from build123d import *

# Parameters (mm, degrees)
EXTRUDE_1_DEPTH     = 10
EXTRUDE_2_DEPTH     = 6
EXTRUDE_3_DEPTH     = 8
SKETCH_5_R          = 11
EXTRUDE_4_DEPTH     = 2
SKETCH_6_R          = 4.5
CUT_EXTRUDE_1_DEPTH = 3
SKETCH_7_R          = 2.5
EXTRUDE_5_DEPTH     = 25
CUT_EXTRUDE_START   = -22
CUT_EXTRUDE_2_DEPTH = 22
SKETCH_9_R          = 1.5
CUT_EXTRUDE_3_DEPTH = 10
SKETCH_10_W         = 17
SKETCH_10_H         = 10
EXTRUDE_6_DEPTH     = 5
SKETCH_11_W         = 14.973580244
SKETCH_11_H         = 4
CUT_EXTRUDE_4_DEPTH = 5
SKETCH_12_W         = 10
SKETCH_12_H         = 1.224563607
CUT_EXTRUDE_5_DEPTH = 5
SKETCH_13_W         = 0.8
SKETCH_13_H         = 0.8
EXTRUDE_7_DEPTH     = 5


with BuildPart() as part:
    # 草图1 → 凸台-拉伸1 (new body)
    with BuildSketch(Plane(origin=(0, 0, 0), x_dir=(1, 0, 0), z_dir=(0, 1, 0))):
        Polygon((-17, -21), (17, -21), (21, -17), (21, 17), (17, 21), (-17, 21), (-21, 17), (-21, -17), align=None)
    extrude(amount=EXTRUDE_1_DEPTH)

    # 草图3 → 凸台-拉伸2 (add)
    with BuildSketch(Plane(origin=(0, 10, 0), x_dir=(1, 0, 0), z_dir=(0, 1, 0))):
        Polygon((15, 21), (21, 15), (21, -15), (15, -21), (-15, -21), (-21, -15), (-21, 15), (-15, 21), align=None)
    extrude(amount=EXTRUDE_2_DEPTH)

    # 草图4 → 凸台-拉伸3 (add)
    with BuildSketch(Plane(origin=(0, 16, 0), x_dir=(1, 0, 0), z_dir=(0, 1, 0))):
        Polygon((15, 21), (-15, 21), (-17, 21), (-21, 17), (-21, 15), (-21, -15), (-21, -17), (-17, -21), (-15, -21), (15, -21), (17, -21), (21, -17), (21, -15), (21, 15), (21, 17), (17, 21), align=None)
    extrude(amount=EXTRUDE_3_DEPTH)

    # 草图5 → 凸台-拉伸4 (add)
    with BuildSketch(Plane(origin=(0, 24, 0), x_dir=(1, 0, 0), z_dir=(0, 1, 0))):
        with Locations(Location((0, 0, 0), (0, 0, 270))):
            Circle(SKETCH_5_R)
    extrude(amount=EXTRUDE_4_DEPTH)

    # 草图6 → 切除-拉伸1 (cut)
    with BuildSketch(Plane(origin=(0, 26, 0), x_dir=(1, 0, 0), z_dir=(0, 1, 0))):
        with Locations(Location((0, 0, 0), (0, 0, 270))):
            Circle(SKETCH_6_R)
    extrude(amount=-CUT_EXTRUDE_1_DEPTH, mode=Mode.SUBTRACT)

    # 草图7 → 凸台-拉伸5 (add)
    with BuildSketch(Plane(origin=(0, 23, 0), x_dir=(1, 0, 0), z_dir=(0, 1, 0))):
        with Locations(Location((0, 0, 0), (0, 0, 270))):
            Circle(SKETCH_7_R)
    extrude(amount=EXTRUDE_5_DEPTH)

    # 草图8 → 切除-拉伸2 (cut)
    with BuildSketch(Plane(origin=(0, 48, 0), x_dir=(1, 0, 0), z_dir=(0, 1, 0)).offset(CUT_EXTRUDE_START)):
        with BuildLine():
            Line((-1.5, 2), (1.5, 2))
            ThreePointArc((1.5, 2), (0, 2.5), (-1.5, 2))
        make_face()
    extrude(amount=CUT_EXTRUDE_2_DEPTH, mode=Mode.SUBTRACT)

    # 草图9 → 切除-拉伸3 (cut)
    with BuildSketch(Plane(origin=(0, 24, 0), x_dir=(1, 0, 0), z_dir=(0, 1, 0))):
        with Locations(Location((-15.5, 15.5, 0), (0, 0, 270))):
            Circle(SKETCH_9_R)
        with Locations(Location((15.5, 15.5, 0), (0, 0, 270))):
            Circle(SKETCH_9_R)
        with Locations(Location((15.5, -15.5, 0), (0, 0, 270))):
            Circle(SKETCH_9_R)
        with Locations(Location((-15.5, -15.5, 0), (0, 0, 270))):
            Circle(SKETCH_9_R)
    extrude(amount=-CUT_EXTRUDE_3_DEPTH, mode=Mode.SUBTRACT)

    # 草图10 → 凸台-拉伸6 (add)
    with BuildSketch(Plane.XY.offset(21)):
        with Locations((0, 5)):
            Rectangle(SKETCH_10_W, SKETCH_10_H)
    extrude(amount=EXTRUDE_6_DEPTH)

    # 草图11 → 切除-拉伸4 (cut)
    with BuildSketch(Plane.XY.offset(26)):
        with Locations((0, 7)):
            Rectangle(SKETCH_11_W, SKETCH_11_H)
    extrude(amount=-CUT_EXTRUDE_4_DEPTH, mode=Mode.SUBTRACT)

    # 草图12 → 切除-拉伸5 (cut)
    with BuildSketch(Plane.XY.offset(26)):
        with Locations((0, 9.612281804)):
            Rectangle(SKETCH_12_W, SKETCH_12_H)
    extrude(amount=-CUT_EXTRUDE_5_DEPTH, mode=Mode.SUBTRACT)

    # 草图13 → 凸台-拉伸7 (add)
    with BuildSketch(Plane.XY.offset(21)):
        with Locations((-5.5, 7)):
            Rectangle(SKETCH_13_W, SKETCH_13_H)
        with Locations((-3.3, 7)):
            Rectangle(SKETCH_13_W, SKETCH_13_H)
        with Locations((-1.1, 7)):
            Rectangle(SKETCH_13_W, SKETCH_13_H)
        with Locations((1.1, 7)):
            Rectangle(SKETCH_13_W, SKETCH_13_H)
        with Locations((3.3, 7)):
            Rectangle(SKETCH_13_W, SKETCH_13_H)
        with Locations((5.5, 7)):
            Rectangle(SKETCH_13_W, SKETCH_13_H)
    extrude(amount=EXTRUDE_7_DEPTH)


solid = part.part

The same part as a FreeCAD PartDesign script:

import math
import FreeCAD as App
import Part
import Sketcher

V = App.Vector
Q = App.Units.Quantity


def add_polygon(sketch, points):
    """Adds a closed chain of lines whose ends are joined by coincident constraints."""
    first, n = sketch.GeometryCount, len(points)
    for a, b in zip(points, points[1:] + points[:1]):
        sketch.addGeometry(Part.LineSegment(App.Vector(*a, 0), App.Vector(*b, 0)), False)
    for i in range(n):
        sketch.addConstraint(Sketcher.Constraint("Coincident", first + i, 2, first + (i + 1) % n, 1))

doc = App.newDocument("Part")
body = doc.addObject("PartDesign::Body", "Body")

sketch1 = doc.addObject("Sketcher::SketchObject", "Sketch")
body.addObject(sketch1)
sketch1.AttachmentSupport = (doc.XZ_Plane, [""])
sketch1.MapMode = "FlatFace"
add_polygon(sketch1, [(-17, 21), (17, 21), (21, 17), (21, -17), (17, -21), (-17, -21), (-21, -17), (-21, 17)])
sketch1.addConstraint(Sketcher.Constraint("Horizontal", 0))
sketch1.addConstraint(Sketcher.Constraint("Vertical", 2))
sketch1.addConstraint(Sketcher.Constraint("Horizontal", 4))
sketch1.addConstraint(Sketcher.Constraint("Vertical", 6))
sketch1.addConstraint(Sketcher.Constraint("Symmetric", 0, 2, 4, 2, -1, 1))
sketch1.addConstraint(Sketcher.Constraint("Symmetric", 1, 2, 5, 2, -1, 1))
sketch1.addConstraint(Sketcher.Constraint("Perpendicular", 1, 3))
sketch1.addConstraint(Sketcher.Constraint("Perpendicular", 5, 7))
sketch1.addConstraint(Sketcher.Constraint("Horizontal", 2, 2, 5, 2))
sketch1.addConstraint(Sketcher.Constraint("Horizontal", 1, 2, 6, 2))
sketch1.addConstraint(Sketcher.Constraint("Vertical", 0, 2, 3, 2))
sketch1.addConstraint(Sketcher.Constraint("Equal", 4, 2))
sketch1.addConstraint(Sketcher.Constraint("DistanceX", 0, 1, 0, 2, Q("34 mm")))
sketch1.addConstraint(Sketcher.Constraint("DistanceY", -1, 1, 0, 2, Q("21 mm")))
pad1 = doc.addObject("PartDesign::Pad", "Pad")
body.addObject(pad1)
pad1.Profile = sketch1
pad1.Length = 10
pad1.Reversed = True

sketch2 = doc.addObject("Sketcher::SketchObject", "Sketch001")
body.addObject(sketch2)
sketch2.AttachmentSupport = (doc.XZ_Plane, [""])
sketch2.MapMode = "FlatFace"
sketch2.AttachmentOffset = App.Placement(V(0, 0, -10), App.Rotation())
add_polygon(sketch2, [(21, -15), (15, -21), (-15, -21), (-21, -15), (-21, 15), (-15, 21), (15, 21), (21, 15)])
sketch2.addConstraint(Sketcher.Constraint("Horizontal", 1))
sketch2.addConstraint(Sketcher.Constraint("Vertical", 3))
sketch2.addConstraint(Sketcher.Constraint("Horizontal", 5))
sketch2.addConstraint(Sketcher.Constraint("Vertical", 7))
sketch2.addConstraint(Sketcher.Constraint("Symmetric", 0, 2, 4, 2, -1, 1))
sketch2.addConstraint(Sketcher.Constraint("Symmetric", 2, 2, 6, 2, -1, 1))
sketch2.addConstraint(Sketcher.Constraint("Perpendicular", 0, 2))
sketch2.addConstraint(Sketcher.Constraint("Perpendicular", 2, 4))
sketch2.addConstraint(Sketcher.Constraint("Perpendicular", 4, 6))
sketch2.addConstraint(Sketcher.Constraint("Horizontal", 3, 2, 6, 2))
sketch2.addConstraint(Sketcher.Constraint("Vertical", 1, 2, 4, 2))
sketch2.addConstraint(Sketcher.Constraint("Equal", 5, 3))
sketch2.addConstraint(Sketcher.Constraint("DistanceX", 1, 2, 1, 1, Q("30 mm")))
sketch2.addConstraint(Sketcher.Constraint("DistanceY", 0, 2, -1, 1, Q("21 mm")))
pad2 = doc.addObject("PartDesign::Pad", "Pad001")
body.addObject(pad2)
pad2.Profile = sketch2
pad2.Length = 6
pad2.Reversed = True

sketch3 = doc.addObject("Sketcher::SketchObject", "Sketch002")
body.addObject(sketch3)
sketch3.AttachmentSupport = (doc.XZ_Plane, [""])
sketch3.MapMode = "FlatFace"
sketch3.AttachmentOffset = App.Placement(V(0, 0, -16), App.Rotation())
add_polygon(sketch3, [(-17, -21), (-21, -17), (-21, 17), (-17, 21), (17, 21), (21, 17), (21, -17), (17, -21)])
sketch3.addConstraint(Sketcher.Constraint("Vertical", 1))
sketch3.addConstraint(Sketcher.Constraint("Horizontal", 3))
sketch3.addConstraint(Sketcher.Constraint("Vertical", 5))
sketch3.addConstraint(Sketcher.Constraint("Horizontal", 7))
sketch3.addConstraint(Sketcher.Constraint("Symmetric", 0, 2, 4, 2, -1, 1))
sketch3.addConstraint(Sketcher.Constraint("Symmetric", 2, 2, 6, 2, -1, 1))
sketch3.addConstraint(Sketcher.Constraint("Perpendicular", 0, 2))
sketch3.addConstraint(Sketcher.Constraint("Perpendicular", 2, 4))
sketch3.addConstraint(Sketcher.Constraint("Perpendicular", 4, 6))
sketch3.addConstraint(Sketcher.Constraint("Horizontal", 1, 2, 4, 2))
sketch3.addConstraint(Sketcher.Constraint("Vertical", 3, 2, 6, 2))
sketch3.addConstraint(Sketcher.Constraint("Equal", 7, 1))
sketch3.addConstraint(Sketcher.Constraint("DistanceX", 3, 1, 3, 2, Q("34 mm")))
sketch3.addConstraint(Sketcher.Constraint("DistanceX", 0, 2, -1, 1, Q("21 mm")))
pad3 = doc.addObject("PartDesign::Pad", "Pad002")
body.addObject(pad3)
pad3.Profile = sketch3
pad3.Length = 8
pad3.Reversed = True

sketch4 = doc.addObject("Sketcher::SketchObject", "Sketch003")
body.addObject(sketch4)
sketch4.AttachmentSupport = (doc.XZ_Plane, [""])
sketch4.MapMode = "FlatFace"
sketch4.AttachmentOffset = App.Placement(V(0, 0, -24), App.Rotation())
sketch4.addGeometry(Part.Circle(V(0, 0, 0), V(0, 0, 1), 11), False)
sketch4.addConstraint(Sketcher.Constraint("Coincident", 0, 3, -1, 1))
sketch4.addConstraint(Sketcher.Constraint("Diameter", 0, Q("22 mm")))
pad4 = doc.addObject("PartDesign::Pad", "Pad003")
body.addObject(pad4)
pad4.Profile = sketch4
pad4.Length = 2
pad4.Reversed = True

sketch5 = doc.addObject("Sketcher::SketchObject", "Sketch004")
body.addObject(sketch5)
sketch5.AttachmentSupport = (doc.XZ_Plane, [""])
sketch5.MapMode = "FlatFace"
sketch5.AttachmentOffset = App.Placement(V(0, 0, -26), App.Rotation())
sketch5.addGeometry(Part.Circle(V(0, 0, 0), V(0, 0, 1), 4.5), False)
sketch5.addConstraint(Sketcher.Constraint("Coincident", 0, 3, -1, 1))
sketch5.addConstraint(Sketcher.Constraint("Diameter", 0, Q("9 mm")))
pocket1 = doc.addObject("PartDesign::Pocket", "Pocket")
body.addObject(pocket1)
pocket1.Profile = sketch5
pocket1.Length = 3
pocket1.Reversed = True

sketch6 = doc.addObject("Sketcher::SketchObject", "Sketch005")
body.addObject(sketch6)
sketch6.AttachmentSupport = (doc.XZ_Plane, [""])
sketch6.MapMode = "FlatFace"
sketch6.AttachmentOffset = App.Placement(V(0, 0, -23), App.Rotation())
sketch6.addGeometry(Part.Circle(V(0, 0, 0), V(0, 0, 1), 2.5), False)
sketch6.addConstraint(Sketcher.Constraint("Coincident", 0, 3, -1, 1))
sketch6.addConstraint(Sketcher.Constraint("Diameter", 0, Q("5 mm")))
pad5 = doc.addObject("PartDesign::Pad", "Pad004")
body.addObject(pad5)
pad5.Profile = sketch6
pad5.Length = 25
pad5.Reversed = True

sketch7 = doc.addObject("Sketcher::SketchObject", "Sketch006")
body.addObject(sketch7)
sketch7.AttachmentSupport = (doc.XZ_Plane, [""])
sketch7.MapMode = "FlatFace"
sketch7.AttachmentOffset = App.Placement(V(0, 0, -26), App.Rotation())
sketch7.addGeometry(Part.LineSegment(V(-1.5, -2, 0), V(1.5, -2, 0)), False)
sketch7.addGeometry(Part.ArcOfCircle(Part.Circle(V(0, 0, 0), V(0, 0, 1), 2.5), math.radians(-127), math.radians(-53)), False)
sketch7.addConstraint(Sketcher.Constraint("Coincident", 0, 1, 1, 1))
sketch7.addConstraint(Sketcher.Constraint("Coincident", 1, 2, 0, 2))
sketch7.addConstraint(Sketcher.Constraint("Horizontal", 0))
sketch7.addConstraint(Sketcher.Constraint("Coincident", 1, 3, -1, 1))
sketch7.addConstraint(Sketcher.Constraint("Radius", 1, Q("2.5 mm")))
sketch7.addConstraint(Sketcher.Constraint("DistanceX", 0, 1, 0, 2, Q("3 mm")))
pocket2 = doc.addObject("PartDesign::Pocket", "Pocket001")
body.addObject(pocket2)
pocket2.Profile = sketch7
pocket2.Length = 22

sketch8 = doc.addObject("Sketcher::SketchObject", "Sketch007")
body.addObject(sketch8)
sketch8.AttachmentSupport = (doc.XZ_Plane, [""])
sketch8.MapMode = "FlatFace"
sketch8.AttachmentOffset = App.Placement(V(0, 0, -24), App.Rotation())
sketch8.addGeometry(Part.Circle(V(-15.5, -15.5, 0), V(0, 0, 1), 1.5), False)
sketch8.addGeometry(Part.Circle(V(15.5, -15.5, 0), V(0, 0, 1), 1.5), False)
sketch8.addGeometry(Part.Circle(V(15.5, 15.5, 0), V(0, 0, 1), 1.5), False)
sketch8.addGeometry(Part.Circle(V(-15.5, 15.5, 0), V(0, 0, 1), 1.5), False)
sketch8.addConstraint(Sketcher.Constraint("Equal", 0, 1))
sketch8.addConstraint(Sketcher.Constraint("Equal", 1, 2))
sketch8.addConstraint(Sketcher.Constraint("Equal", 2, 3))
sketch8.addConstraint(Sketcher.Constraint("Symmetric", 0, 3, 2, 3, -1, 1))
sketch8.addConstraint(Sketcher.Constraint("Symmetric", 1, 3, 3, 3, -1, 1))
sketch8.addConstraint(Sketcher.Constraint("Symmetric", 0, 3, 1, 3, -2))
sketch8.addConstraint(Sketcher.Constraint("Diameter", 0, Q("3 mm")))
sketch8.addConstraint(Sketcher.Constraint("DistanceX", 0, 3, 1, 3, Q("31 mm")))
sketch8.addConstraint(Sketcher.Constraint("DistanceY", 1, 3, 2, 3, Q("31 mm")))
pocket3 = doc.addObject("PartDesign::Pocket", "Pocket002")
body.addObject(pocket3)
pocket3.Profile = sketch8
pocket3.Length = 10
pocket3.Reversed = True

sketch9 = doc.addObject("Sketcher::SketchObject", "Sketch008")
body.addObject(sketch9)
sketch9.AttachmentSupport = (doc.XY_Plane, [""])
sketch9.MapMode = "FlatFace"
sketch9.AttachmentOffset = App.Placement(V(0, 0, 21), App.Rotation())
add_polygon(sketch9, [(-8, 10), (-8, 0), (8, 0), (8, 10)])
sketch9.addConstraint(Sketcher.Constraint("Vertical", 0))
sketch9.addConstraint(Sketcher.Constraint("Horizontal", 1))
sketch9.addConstraint(Sketcher.Constraint("Vertical", 2))
sketch9.addConstraint(Sketcher.Constraint("Horizontal", 3))
sketch9.addConstraint(Sketcher.Constraint("Symmetric", 0, 2, 1, 2, -1, 1))
sketch9.addConstraint(Sketcher.Constraint("DistanceX", 1, 1, 1, 2, Q("17 mm")))
sketch9.addConstraint(Sketcher.Constraint("DistanceY", 0, 2, 0, 1, Q("10 mm")))
pad6 = doc.addObject("PartDesign::Pad", "Pad005")
body.addObject(pad6)
pad6.Profile = sketch9
pad6.Length = 5

sketch10 = doc.addObject("Sketcher::SketchObject", "Sketch009")
body.addObject(sketch10)
sketch10.AttachmentSupport = (doc.XY_Plane, [""])
sketch10.MapMode = "FlatFace"
sketch10.AttachmentOffset = App.Placement(V(0, 0, 26), App.Rotation())
add_polygon(sketch10, [(-7.5, 9), (-7.5, 5), (7.5, 5), (7.5, 9)])
sketch10.addConstraint(Sketcher.Constraint("Vertical", 0))
sketch10.addConstraint(Sketcher.Constraint("Horizontal", 1))
sketch10.addConstraint(Sketcher.Constraint("Vertical", 2))
sketch10.addConstraint(Sketcher.Constraint("Horizontal", 3))
sketch10.addConstraint(Sketcher.Constraint("DistanceY", 0, 2, 0, 1, Q("4 mm")))
sketch10.addConstraint(Sketcher.Constraint("DistanceY", -1, 1, 0, 2, Q("5 mm")))
sketch10.addConstraint(Sketcher.Constraint("DistanceX", 1, 1, 1, 2, Q("14.97358 mm")))
sketch10.addConstraint(Sketcher.Constraint("DistanceX", 0, 2, -1, 1, Q("7.48679 mm")))
pocket4 = doc.addObject("PartDesign::Pocket", "Pocket003")
body.addObject(pocket4)
pocket4.Profile = sketch10
pocket4.Length = 5

sketch11 = doc.addObject("Sketcher::SketchObject", "Sketch010")
body.addObject(sketch11)
sketch11.AttachmentSupport = (doc.XY_Plane, [""])
sketch11.MapMode = "FlatFace"
sketch11.AttachmentOffset = App.Placement(V(0, 0, 26), App.Rotation())
add_polygon(sketch11, [(-5, 10.2), (-5, 9), (5, 9), (5, 10.2)])
sketch11.addConstraint(Sketcher.Constraint("Vertical", 0))
sketch11.addConstraint(Sketcher.Constraint("Horizontal", 1))
sketch11.addConstraint(Sketcher.Constraint("Vertical", 2))
sketch11.addConstraint(Sketcher.Constraint("Horizontal", 3))
sketch11.addConstraint(Sketcher.Constraint("DistanceX", 1, 1, 1, 2, Q("10 mm")))
sketch11.addConstraint(Sketcher.Constraint("DistanceX", 0, 2, -1, 1, Q("5 mm")))
sketch11.addConstraint(Sketcher.Constraint("DistanceY", -1, 1, 0, 2, Q("9 mm")))
sketch11.addConstraint(Sketcher.Constraint("DistanceY", 0, 2, 0, 1, Q("1.224564 mm")))
pocket5 = doc.addObject("PartDesign::Pocket", "Pocket004")
body.addObject(pocket5)
pocket5.Profile = sketch11
pocket5.Length = 5

sketch12 = doc.addObject("Sketcher::SketchObject", "Sketch011")
body.addObject(sketch12)
sketch12.AttachmentSupport = (doc.XY_Plane, [""])
sketch12.MapMode = "FlatFace"
sketch12.AttachmentOffset = App.Placement(V(0, 0, 21), App.Rotation())
add_polygon(sketch12, [(-5.9, 7.4), (-5.9, 6.6), (-5.1, 6.6), (-5.1, 7.4)])
add_polygon(sketch12, [(-3.7, 7.4), (-3.7, 6.6), (-2.9, 6.6), (-2.9, 7.4)])
add_polygon(sketch12, [(-1.5, 7.4), (-1.5, 6.6), (-0.7, 6.6), (-0.7, 7.4)])
add_polygon(sketch12, [(0.7, 7.4), (0.7, 6.6), (1.5, 6.6), (1.5, 7.4)])
add_polygon(sketch12, [(2.9, 7.4), (2.9, 6.6), (3.7, 6.6), (3.7, 7.4)])
add_polygon(sketch12, [(5.1, 7.4), (5.1, 6.6), (5.9, 6.6), (5.9, 7.4)])
sketch12.addConstraint(Sketcher.Constraint("Vertical", 0))
sketch12.addConstraint(Sketcher.Constraint("Horizontal", 1))
sketch12.addConstraint(Sketcher.Constraint("Vertical", 2))
sketch12.addConstraint(Sketcher.Constraint("Horizontal", 3))
sketch12.addConstraint(Sketcher.Constraint("Vertical", 4))
sketch12.addConstraint(Sketcher.Constraint("Horizontal", 5))
sketch12.addConstraint(Sketcher.Constraint("Vertical", 6))
sketch12.addConstraint(Sketcher.Constraint("Horizontal", 7))
sketch12.addConstraint(Sketcher.Constraint("Vertical", 8))
sketch12.addConstraint(Sketcher.Constraint("Horizontal", 9))
sketch12.addConstraint(Sketcher.Constraint("Vertical", 10))
sketch12.addConstraint(Sketcher.Constraint("Horizontal", 11))
sketch12.addConstraint(Sketcher.Constraint("Vertical", 12))
sketch12.addConstraint(Sketcher.Constraint("Horizontal", 13))
sketch12.addConstraint(Sketcher.Constraint("Vertical", 14))
sketch12.addConstraint(Sketcher.Constraint("Horizontal", 15))
sketch12.addConstraint(Sketcher.Constraint("Vertical", 16))
sketch12.addConstraint(Sketcher.Constraint("Horizontal", 17))
sketch12.addConstraint(Sketcher.Constraint("Vertical", 18))
sketch12.addConstraint(Sketcher.Constraint("Horizontal", 19))
sketch12.addConstraint(Sketcher.Constraint("Vertical", 20))
sketch12.addConstraint(Sketcher.Constraint("Horizontal", 21))
sketch12.addConstraint(Sketcher.Constraint("Vertical", 22))
sketch12.addConstraint(Sketcher.Constraint("Horizontal", 23))
sketch12.addConstraint(Sketcher.Constraint("Symmetric", 9, 2, 12, 2, -2))
sketch12.addConstraint(Sketcher.Constraint("Symmetric", 11, 2, 14, 2, -2))
sketch12.addConstraint(Sketcher.Constraint("Symmetric", 5, 2, 16, 2, -2))
sketch12.addConstraint(Sketcher.Constraint("Symmetric", 7, 2, 18, 2, -2))
sketch12.addConstraint(Sketcher.Constraint("Symmetric", 1, 2, 20, 2, -2))
sketch12.addConstraint(Sketcher.Constraint("Symmetric", 3, 2, 22, 2, -2))
sketch12.addConstraint(Sketcher.Constraint("Horizontal", 1, 2, 4, 2))
sketch12.addConstraint(Sketcher.Constraint("Horizontal", 3, 2, 6, 2))
sketch12.addConstraint(Sketcher.Constraint("Horizontal", 5, 2, 8, 2))
sketch12.addConstraint(Sketcher.Constraint("Horizontal", 7, 2, 10, 2))
sketch12.addConstraint(Sketcher.Constraint("Equal", 3, 5))
sketch12.addConstraint(Sketcher.Constraint("Equal", 7, 9))
sketch12.addConstraint(Sketcher.Constraint("Equal", 23, 0))
sketch12.addConstraint(Sketcher.Constraint("DistanceX", 1, 1, 1, 2, Q("0.8 mm")))
sketch12.addConstraint(Sketcher.Constraint("DistanceX", 0, 2, 5, 2, Q("3 mm")))
sketch12.addConstraint(Sketcher.Constraint("DistanceX", 4, 2, 9, 2, Q("3 mm")))
sketch12.addConstraint(Sketcher.Constraint("DistanceX", 8, 2, 13, 2, Q("3 mm")))
sketch12.addConstraint(Sketcher.Constraint("DistanceY", -1, 1, 0, 2, Q("6.6 mm")))
pad7 = doc.addObject("PartDesign::Pad", "Pad006")
body.addObject(pad7)
pad7.Profile = sketch12
pad7.Length = 5

doc.recompute()
